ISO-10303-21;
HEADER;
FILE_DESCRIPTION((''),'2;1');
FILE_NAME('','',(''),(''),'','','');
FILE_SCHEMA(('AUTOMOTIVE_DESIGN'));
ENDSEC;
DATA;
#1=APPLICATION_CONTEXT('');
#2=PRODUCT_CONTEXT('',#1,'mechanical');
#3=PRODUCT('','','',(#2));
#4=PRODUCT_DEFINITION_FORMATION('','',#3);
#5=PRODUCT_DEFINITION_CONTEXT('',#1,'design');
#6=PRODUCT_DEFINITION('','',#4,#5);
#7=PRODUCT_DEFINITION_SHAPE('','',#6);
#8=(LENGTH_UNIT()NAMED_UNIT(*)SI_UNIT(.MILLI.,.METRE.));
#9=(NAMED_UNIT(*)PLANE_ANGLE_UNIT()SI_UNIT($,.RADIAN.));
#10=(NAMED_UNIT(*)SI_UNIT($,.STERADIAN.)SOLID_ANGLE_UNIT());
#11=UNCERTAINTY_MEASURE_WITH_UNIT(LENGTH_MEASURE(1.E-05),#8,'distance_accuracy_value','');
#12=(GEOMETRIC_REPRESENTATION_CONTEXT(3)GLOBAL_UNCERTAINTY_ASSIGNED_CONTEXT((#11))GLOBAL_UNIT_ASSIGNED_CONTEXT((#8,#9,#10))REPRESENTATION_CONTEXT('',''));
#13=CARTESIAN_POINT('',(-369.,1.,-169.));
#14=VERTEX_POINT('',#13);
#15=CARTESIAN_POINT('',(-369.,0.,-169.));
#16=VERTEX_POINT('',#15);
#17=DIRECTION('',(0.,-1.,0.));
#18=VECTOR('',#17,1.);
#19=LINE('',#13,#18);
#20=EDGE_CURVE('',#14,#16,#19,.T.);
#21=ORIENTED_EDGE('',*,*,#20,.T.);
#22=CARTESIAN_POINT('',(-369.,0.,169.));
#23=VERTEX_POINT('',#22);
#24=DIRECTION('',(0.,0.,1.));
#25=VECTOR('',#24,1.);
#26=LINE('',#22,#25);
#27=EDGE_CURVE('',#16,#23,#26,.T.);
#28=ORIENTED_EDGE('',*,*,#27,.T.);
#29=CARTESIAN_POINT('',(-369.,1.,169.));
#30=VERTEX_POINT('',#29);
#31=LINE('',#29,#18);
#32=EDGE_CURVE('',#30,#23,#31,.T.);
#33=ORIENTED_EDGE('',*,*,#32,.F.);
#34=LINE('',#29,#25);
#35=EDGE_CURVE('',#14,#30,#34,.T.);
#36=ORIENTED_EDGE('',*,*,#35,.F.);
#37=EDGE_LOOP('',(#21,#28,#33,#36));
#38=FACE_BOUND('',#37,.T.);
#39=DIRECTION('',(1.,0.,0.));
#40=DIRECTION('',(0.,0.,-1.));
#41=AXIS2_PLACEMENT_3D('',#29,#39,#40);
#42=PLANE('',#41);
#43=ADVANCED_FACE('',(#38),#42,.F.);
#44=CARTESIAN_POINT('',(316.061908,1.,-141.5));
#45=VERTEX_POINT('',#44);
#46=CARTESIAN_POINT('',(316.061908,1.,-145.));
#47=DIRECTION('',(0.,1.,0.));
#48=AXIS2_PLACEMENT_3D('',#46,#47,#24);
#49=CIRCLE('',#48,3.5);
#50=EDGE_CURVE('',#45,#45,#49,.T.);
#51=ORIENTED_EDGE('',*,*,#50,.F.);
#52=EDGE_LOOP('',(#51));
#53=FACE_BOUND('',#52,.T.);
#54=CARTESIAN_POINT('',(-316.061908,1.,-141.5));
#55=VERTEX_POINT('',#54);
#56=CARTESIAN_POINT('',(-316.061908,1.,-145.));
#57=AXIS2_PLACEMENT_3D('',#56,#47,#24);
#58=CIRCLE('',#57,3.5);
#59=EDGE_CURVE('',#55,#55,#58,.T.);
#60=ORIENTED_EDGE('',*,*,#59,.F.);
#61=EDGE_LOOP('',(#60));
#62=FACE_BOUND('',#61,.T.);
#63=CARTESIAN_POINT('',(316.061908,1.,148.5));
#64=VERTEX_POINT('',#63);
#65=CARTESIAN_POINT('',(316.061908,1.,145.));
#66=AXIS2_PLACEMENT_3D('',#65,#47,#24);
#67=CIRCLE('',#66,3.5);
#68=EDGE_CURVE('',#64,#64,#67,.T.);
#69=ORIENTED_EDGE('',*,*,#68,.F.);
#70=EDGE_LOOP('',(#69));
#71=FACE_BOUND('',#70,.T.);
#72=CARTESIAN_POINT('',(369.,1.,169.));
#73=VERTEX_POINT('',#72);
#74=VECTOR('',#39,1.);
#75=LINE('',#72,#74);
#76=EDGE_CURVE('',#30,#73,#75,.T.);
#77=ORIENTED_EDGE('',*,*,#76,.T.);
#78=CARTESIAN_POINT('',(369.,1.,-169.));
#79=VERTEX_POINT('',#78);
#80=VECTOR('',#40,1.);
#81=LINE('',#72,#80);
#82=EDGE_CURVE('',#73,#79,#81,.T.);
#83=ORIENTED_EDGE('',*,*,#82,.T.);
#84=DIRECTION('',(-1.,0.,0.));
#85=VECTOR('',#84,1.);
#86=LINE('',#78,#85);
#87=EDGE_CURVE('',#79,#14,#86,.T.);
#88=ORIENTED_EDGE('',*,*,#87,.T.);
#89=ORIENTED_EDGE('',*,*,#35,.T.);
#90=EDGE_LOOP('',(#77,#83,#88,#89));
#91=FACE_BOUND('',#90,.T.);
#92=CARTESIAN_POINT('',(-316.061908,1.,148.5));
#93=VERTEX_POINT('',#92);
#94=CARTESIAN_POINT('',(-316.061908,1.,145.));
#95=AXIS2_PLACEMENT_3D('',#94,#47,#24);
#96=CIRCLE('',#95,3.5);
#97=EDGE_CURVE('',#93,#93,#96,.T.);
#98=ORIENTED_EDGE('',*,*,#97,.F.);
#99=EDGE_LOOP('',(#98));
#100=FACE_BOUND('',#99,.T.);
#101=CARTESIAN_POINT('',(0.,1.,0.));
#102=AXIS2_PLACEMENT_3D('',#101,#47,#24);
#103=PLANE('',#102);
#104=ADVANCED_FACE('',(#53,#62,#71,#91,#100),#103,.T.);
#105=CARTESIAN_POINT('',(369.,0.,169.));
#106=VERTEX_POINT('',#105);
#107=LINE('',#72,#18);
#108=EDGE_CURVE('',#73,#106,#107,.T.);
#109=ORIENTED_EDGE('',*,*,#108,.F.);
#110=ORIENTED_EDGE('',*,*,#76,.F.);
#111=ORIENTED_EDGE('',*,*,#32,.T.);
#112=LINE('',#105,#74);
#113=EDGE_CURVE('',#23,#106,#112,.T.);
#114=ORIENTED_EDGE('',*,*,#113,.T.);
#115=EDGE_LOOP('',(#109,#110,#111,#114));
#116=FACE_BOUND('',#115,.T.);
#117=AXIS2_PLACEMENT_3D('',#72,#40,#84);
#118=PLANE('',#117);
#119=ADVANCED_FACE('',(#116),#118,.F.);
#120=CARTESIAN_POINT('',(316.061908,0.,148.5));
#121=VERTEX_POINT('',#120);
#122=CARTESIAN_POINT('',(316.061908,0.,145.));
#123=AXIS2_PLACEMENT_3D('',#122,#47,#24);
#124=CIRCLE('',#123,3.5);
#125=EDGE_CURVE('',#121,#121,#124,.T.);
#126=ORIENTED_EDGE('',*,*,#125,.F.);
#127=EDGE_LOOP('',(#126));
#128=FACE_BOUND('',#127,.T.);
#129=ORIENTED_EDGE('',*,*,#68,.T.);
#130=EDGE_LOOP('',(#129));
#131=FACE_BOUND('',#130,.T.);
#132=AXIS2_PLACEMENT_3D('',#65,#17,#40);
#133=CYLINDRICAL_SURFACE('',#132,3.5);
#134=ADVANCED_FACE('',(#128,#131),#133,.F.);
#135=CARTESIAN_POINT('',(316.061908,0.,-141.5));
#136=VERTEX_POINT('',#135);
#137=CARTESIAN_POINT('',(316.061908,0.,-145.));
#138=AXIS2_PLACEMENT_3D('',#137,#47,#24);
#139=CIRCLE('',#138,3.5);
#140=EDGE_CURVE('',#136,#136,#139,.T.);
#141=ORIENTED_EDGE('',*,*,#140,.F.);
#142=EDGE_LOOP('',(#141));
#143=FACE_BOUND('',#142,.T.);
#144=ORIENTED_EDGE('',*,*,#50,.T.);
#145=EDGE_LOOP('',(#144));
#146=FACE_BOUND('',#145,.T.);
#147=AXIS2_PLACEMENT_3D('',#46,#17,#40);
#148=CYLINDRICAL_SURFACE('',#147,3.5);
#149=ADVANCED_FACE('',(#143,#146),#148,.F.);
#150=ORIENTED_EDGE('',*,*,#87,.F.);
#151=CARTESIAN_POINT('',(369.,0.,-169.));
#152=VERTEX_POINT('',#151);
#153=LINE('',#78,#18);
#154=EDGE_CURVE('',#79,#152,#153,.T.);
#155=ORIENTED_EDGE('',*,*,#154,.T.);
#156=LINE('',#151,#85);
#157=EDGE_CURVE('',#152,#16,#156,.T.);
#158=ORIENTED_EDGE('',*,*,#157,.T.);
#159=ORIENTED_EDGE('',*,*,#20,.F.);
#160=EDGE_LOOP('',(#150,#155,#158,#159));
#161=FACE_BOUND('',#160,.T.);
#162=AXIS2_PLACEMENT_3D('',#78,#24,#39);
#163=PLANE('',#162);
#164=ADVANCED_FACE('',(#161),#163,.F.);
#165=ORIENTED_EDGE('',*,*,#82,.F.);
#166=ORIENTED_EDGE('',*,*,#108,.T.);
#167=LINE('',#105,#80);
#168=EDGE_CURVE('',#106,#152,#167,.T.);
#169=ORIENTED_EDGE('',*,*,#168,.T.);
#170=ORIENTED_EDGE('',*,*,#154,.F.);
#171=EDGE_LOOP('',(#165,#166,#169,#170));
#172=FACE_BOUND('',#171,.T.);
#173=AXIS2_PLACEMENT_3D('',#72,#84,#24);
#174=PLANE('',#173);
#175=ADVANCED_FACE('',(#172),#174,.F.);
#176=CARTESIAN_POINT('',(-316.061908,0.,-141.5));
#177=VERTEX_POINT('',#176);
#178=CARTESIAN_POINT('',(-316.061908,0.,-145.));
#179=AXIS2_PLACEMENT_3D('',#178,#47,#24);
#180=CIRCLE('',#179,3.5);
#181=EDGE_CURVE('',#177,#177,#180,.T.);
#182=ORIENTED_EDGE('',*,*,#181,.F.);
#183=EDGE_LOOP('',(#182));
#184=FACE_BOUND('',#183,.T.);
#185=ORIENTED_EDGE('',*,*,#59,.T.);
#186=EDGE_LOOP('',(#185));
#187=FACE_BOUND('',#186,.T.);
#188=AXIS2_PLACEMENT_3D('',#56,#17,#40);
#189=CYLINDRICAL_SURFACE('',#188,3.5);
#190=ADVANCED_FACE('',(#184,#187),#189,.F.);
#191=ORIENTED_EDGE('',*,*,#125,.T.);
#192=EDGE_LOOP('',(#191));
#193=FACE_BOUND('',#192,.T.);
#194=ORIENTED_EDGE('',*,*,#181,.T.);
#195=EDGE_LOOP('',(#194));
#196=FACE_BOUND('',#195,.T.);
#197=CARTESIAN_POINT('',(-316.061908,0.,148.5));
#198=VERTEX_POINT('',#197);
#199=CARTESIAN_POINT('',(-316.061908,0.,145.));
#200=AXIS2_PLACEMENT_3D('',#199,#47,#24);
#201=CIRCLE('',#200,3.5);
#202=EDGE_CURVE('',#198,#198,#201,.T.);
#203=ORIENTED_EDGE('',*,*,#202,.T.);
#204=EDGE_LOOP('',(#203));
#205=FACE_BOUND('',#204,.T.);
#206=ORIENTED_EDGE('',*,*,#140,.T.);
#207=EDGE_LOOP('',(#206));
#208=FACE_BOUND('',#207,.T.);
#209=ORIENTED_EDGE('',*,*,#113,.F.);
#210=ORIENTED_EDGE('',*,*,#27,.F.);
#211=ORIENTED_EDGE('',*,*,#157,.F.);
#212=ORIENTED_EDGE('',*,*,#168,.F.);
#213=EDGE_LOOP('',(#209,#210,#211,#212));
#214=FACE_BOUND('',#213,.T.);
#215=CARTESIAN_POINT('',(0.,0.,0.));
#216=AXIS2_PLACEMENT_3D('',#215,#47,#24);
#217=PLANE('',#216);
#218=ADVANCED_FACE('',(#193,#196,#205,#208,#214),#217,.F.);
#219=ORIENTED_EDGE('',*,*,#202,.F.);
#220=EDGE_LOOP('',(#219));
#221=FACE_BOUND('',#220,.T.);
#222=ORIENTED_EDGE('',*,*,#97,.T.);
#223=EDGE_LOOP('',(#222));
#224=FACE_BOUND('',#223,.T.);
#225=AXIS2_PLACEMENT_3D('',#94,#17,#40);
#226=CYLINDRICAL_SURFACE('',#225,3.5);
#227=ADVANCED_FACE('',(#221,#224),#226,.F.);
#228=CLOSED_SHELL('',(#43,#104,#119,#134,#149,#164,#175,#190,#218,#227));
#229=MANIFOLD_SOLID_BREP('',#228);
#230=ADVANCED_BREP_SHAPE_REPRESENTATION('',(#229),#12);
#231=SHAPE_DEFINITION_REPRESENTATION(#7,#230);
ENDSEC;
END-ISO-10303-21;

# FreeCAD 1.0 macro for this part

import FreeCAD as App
import Part
import Sketcher

V = App.Vector
Q = App.Units.Quantity


def add_polygon(sketch, points):
    """Adds a closed chain of lines whose ends are joined by coincident constraints."""
    first, n = sketch.GeometryCount, len(points)
    for a, b in zip(points, points[1:] + points[:1]):
        sketch.addGeometry(Part.LineSegment(App.Vector(*a, 0), App.Vector(*b, 0)), False)
    for i in range(n):
        sketch.addConstraint(Sketcher.Constraint("Coincident", first + i, 2, first + (i + 1) % n, 1))

doc = App.newDocument("Part")
body = doc.addObject("PartDesign::Body", "Body")

# Sketch on XZ plane
sketch1 = body.newObject("Sketcher::SketchObject", "Sketch")
sketch1.AttachmentSupport = (doc.getObject("XZ_Plane"), [""])
sketch1.MapMode = "FlatFace"
add_polygon(sketch1, [(-369, -169), (-369, 169), (369, 169), (369, -169)])  # lines 0-3
sketch1.addGeometry(Part.Circle(V(-316.061908, 145, 0), V(0, 0, 1), 3.5), False)  # 4
sketch1.addGeometry(Part.Circle(V(316.061908, 145, 0), V(0, 0, 1), 3.5), False)  # 5
sketch1.addGeometry(Part.Circle(V(-316.061908, -145, 0), V(0, 0, 1), 3.5), False)  # 6
sketch1.addGeometry(Part.Circle(V(316.061908, -145, 0), V(0, 0, 1), 3.5), False)  # 7
sketch1.addConstraint(Sketcher.Constraint("Vertical", 0))
sketch1.addConstraint(Sketcher.Constraint("Horizontal", 1))
sketch1.addConstraint(Sketcher.Constraint("Vertical", 2))
sketch1.addConstraint(Sketcher.Constraint("Horizontal", 3))
sketch1.addConstraint(Sketcher.Constraint("Equal", 4, 5))
sketch1.addConstraint(Sketcher.Constraint("Equal", 5, 6))
sketch1.addConstraint(Sketcher.Constraint("Equal", 6, 7))
sketch1.addConstraint(Sketcher.Constraint("Symmetric", 5, 3, 6, 3, -1, 1))
sketch1.addConstraint(Sketcher.Constraint("Symmetric", 4, 3, 7, 3, -1, 1))
sketch1.addConstraint(Sketcher.Constraint("Symmetric", 0, 2, 2, 2, -1, 1))
sketch1.addConstraint(Sketcher.Constraint("Symmetric", 4, 3, 5, 3, -2))
sketch1.addConstraint(Sketcher.Constraint("Diameter", 4, Q("7 mm")))
sketch1.addConstraint(Sketcher.Constraint("DistanceX", 1, 1, 1, 2, Q("738 mm")))
sketch1.addConstraint(Sketcher.Constraint("DistanceY", 0, 1, 0, 2, Q("338 mm")))
sketch1.addConstraint(Sketcher.Constraint("DistanceY", -1, 1, 4, 3, Q("145 mm")))
sketch1.addConstraint(Sketcher.Constraint("DistanceX", 4, 3, -1, 1, Q("316.061908 mm")))
pad1 = body.newObject("PartDesign::Pad", "Pad")
pad1.Profile = sketch1
pad1.Length = 1
pad1.Reversed = True

doc.recompute()
